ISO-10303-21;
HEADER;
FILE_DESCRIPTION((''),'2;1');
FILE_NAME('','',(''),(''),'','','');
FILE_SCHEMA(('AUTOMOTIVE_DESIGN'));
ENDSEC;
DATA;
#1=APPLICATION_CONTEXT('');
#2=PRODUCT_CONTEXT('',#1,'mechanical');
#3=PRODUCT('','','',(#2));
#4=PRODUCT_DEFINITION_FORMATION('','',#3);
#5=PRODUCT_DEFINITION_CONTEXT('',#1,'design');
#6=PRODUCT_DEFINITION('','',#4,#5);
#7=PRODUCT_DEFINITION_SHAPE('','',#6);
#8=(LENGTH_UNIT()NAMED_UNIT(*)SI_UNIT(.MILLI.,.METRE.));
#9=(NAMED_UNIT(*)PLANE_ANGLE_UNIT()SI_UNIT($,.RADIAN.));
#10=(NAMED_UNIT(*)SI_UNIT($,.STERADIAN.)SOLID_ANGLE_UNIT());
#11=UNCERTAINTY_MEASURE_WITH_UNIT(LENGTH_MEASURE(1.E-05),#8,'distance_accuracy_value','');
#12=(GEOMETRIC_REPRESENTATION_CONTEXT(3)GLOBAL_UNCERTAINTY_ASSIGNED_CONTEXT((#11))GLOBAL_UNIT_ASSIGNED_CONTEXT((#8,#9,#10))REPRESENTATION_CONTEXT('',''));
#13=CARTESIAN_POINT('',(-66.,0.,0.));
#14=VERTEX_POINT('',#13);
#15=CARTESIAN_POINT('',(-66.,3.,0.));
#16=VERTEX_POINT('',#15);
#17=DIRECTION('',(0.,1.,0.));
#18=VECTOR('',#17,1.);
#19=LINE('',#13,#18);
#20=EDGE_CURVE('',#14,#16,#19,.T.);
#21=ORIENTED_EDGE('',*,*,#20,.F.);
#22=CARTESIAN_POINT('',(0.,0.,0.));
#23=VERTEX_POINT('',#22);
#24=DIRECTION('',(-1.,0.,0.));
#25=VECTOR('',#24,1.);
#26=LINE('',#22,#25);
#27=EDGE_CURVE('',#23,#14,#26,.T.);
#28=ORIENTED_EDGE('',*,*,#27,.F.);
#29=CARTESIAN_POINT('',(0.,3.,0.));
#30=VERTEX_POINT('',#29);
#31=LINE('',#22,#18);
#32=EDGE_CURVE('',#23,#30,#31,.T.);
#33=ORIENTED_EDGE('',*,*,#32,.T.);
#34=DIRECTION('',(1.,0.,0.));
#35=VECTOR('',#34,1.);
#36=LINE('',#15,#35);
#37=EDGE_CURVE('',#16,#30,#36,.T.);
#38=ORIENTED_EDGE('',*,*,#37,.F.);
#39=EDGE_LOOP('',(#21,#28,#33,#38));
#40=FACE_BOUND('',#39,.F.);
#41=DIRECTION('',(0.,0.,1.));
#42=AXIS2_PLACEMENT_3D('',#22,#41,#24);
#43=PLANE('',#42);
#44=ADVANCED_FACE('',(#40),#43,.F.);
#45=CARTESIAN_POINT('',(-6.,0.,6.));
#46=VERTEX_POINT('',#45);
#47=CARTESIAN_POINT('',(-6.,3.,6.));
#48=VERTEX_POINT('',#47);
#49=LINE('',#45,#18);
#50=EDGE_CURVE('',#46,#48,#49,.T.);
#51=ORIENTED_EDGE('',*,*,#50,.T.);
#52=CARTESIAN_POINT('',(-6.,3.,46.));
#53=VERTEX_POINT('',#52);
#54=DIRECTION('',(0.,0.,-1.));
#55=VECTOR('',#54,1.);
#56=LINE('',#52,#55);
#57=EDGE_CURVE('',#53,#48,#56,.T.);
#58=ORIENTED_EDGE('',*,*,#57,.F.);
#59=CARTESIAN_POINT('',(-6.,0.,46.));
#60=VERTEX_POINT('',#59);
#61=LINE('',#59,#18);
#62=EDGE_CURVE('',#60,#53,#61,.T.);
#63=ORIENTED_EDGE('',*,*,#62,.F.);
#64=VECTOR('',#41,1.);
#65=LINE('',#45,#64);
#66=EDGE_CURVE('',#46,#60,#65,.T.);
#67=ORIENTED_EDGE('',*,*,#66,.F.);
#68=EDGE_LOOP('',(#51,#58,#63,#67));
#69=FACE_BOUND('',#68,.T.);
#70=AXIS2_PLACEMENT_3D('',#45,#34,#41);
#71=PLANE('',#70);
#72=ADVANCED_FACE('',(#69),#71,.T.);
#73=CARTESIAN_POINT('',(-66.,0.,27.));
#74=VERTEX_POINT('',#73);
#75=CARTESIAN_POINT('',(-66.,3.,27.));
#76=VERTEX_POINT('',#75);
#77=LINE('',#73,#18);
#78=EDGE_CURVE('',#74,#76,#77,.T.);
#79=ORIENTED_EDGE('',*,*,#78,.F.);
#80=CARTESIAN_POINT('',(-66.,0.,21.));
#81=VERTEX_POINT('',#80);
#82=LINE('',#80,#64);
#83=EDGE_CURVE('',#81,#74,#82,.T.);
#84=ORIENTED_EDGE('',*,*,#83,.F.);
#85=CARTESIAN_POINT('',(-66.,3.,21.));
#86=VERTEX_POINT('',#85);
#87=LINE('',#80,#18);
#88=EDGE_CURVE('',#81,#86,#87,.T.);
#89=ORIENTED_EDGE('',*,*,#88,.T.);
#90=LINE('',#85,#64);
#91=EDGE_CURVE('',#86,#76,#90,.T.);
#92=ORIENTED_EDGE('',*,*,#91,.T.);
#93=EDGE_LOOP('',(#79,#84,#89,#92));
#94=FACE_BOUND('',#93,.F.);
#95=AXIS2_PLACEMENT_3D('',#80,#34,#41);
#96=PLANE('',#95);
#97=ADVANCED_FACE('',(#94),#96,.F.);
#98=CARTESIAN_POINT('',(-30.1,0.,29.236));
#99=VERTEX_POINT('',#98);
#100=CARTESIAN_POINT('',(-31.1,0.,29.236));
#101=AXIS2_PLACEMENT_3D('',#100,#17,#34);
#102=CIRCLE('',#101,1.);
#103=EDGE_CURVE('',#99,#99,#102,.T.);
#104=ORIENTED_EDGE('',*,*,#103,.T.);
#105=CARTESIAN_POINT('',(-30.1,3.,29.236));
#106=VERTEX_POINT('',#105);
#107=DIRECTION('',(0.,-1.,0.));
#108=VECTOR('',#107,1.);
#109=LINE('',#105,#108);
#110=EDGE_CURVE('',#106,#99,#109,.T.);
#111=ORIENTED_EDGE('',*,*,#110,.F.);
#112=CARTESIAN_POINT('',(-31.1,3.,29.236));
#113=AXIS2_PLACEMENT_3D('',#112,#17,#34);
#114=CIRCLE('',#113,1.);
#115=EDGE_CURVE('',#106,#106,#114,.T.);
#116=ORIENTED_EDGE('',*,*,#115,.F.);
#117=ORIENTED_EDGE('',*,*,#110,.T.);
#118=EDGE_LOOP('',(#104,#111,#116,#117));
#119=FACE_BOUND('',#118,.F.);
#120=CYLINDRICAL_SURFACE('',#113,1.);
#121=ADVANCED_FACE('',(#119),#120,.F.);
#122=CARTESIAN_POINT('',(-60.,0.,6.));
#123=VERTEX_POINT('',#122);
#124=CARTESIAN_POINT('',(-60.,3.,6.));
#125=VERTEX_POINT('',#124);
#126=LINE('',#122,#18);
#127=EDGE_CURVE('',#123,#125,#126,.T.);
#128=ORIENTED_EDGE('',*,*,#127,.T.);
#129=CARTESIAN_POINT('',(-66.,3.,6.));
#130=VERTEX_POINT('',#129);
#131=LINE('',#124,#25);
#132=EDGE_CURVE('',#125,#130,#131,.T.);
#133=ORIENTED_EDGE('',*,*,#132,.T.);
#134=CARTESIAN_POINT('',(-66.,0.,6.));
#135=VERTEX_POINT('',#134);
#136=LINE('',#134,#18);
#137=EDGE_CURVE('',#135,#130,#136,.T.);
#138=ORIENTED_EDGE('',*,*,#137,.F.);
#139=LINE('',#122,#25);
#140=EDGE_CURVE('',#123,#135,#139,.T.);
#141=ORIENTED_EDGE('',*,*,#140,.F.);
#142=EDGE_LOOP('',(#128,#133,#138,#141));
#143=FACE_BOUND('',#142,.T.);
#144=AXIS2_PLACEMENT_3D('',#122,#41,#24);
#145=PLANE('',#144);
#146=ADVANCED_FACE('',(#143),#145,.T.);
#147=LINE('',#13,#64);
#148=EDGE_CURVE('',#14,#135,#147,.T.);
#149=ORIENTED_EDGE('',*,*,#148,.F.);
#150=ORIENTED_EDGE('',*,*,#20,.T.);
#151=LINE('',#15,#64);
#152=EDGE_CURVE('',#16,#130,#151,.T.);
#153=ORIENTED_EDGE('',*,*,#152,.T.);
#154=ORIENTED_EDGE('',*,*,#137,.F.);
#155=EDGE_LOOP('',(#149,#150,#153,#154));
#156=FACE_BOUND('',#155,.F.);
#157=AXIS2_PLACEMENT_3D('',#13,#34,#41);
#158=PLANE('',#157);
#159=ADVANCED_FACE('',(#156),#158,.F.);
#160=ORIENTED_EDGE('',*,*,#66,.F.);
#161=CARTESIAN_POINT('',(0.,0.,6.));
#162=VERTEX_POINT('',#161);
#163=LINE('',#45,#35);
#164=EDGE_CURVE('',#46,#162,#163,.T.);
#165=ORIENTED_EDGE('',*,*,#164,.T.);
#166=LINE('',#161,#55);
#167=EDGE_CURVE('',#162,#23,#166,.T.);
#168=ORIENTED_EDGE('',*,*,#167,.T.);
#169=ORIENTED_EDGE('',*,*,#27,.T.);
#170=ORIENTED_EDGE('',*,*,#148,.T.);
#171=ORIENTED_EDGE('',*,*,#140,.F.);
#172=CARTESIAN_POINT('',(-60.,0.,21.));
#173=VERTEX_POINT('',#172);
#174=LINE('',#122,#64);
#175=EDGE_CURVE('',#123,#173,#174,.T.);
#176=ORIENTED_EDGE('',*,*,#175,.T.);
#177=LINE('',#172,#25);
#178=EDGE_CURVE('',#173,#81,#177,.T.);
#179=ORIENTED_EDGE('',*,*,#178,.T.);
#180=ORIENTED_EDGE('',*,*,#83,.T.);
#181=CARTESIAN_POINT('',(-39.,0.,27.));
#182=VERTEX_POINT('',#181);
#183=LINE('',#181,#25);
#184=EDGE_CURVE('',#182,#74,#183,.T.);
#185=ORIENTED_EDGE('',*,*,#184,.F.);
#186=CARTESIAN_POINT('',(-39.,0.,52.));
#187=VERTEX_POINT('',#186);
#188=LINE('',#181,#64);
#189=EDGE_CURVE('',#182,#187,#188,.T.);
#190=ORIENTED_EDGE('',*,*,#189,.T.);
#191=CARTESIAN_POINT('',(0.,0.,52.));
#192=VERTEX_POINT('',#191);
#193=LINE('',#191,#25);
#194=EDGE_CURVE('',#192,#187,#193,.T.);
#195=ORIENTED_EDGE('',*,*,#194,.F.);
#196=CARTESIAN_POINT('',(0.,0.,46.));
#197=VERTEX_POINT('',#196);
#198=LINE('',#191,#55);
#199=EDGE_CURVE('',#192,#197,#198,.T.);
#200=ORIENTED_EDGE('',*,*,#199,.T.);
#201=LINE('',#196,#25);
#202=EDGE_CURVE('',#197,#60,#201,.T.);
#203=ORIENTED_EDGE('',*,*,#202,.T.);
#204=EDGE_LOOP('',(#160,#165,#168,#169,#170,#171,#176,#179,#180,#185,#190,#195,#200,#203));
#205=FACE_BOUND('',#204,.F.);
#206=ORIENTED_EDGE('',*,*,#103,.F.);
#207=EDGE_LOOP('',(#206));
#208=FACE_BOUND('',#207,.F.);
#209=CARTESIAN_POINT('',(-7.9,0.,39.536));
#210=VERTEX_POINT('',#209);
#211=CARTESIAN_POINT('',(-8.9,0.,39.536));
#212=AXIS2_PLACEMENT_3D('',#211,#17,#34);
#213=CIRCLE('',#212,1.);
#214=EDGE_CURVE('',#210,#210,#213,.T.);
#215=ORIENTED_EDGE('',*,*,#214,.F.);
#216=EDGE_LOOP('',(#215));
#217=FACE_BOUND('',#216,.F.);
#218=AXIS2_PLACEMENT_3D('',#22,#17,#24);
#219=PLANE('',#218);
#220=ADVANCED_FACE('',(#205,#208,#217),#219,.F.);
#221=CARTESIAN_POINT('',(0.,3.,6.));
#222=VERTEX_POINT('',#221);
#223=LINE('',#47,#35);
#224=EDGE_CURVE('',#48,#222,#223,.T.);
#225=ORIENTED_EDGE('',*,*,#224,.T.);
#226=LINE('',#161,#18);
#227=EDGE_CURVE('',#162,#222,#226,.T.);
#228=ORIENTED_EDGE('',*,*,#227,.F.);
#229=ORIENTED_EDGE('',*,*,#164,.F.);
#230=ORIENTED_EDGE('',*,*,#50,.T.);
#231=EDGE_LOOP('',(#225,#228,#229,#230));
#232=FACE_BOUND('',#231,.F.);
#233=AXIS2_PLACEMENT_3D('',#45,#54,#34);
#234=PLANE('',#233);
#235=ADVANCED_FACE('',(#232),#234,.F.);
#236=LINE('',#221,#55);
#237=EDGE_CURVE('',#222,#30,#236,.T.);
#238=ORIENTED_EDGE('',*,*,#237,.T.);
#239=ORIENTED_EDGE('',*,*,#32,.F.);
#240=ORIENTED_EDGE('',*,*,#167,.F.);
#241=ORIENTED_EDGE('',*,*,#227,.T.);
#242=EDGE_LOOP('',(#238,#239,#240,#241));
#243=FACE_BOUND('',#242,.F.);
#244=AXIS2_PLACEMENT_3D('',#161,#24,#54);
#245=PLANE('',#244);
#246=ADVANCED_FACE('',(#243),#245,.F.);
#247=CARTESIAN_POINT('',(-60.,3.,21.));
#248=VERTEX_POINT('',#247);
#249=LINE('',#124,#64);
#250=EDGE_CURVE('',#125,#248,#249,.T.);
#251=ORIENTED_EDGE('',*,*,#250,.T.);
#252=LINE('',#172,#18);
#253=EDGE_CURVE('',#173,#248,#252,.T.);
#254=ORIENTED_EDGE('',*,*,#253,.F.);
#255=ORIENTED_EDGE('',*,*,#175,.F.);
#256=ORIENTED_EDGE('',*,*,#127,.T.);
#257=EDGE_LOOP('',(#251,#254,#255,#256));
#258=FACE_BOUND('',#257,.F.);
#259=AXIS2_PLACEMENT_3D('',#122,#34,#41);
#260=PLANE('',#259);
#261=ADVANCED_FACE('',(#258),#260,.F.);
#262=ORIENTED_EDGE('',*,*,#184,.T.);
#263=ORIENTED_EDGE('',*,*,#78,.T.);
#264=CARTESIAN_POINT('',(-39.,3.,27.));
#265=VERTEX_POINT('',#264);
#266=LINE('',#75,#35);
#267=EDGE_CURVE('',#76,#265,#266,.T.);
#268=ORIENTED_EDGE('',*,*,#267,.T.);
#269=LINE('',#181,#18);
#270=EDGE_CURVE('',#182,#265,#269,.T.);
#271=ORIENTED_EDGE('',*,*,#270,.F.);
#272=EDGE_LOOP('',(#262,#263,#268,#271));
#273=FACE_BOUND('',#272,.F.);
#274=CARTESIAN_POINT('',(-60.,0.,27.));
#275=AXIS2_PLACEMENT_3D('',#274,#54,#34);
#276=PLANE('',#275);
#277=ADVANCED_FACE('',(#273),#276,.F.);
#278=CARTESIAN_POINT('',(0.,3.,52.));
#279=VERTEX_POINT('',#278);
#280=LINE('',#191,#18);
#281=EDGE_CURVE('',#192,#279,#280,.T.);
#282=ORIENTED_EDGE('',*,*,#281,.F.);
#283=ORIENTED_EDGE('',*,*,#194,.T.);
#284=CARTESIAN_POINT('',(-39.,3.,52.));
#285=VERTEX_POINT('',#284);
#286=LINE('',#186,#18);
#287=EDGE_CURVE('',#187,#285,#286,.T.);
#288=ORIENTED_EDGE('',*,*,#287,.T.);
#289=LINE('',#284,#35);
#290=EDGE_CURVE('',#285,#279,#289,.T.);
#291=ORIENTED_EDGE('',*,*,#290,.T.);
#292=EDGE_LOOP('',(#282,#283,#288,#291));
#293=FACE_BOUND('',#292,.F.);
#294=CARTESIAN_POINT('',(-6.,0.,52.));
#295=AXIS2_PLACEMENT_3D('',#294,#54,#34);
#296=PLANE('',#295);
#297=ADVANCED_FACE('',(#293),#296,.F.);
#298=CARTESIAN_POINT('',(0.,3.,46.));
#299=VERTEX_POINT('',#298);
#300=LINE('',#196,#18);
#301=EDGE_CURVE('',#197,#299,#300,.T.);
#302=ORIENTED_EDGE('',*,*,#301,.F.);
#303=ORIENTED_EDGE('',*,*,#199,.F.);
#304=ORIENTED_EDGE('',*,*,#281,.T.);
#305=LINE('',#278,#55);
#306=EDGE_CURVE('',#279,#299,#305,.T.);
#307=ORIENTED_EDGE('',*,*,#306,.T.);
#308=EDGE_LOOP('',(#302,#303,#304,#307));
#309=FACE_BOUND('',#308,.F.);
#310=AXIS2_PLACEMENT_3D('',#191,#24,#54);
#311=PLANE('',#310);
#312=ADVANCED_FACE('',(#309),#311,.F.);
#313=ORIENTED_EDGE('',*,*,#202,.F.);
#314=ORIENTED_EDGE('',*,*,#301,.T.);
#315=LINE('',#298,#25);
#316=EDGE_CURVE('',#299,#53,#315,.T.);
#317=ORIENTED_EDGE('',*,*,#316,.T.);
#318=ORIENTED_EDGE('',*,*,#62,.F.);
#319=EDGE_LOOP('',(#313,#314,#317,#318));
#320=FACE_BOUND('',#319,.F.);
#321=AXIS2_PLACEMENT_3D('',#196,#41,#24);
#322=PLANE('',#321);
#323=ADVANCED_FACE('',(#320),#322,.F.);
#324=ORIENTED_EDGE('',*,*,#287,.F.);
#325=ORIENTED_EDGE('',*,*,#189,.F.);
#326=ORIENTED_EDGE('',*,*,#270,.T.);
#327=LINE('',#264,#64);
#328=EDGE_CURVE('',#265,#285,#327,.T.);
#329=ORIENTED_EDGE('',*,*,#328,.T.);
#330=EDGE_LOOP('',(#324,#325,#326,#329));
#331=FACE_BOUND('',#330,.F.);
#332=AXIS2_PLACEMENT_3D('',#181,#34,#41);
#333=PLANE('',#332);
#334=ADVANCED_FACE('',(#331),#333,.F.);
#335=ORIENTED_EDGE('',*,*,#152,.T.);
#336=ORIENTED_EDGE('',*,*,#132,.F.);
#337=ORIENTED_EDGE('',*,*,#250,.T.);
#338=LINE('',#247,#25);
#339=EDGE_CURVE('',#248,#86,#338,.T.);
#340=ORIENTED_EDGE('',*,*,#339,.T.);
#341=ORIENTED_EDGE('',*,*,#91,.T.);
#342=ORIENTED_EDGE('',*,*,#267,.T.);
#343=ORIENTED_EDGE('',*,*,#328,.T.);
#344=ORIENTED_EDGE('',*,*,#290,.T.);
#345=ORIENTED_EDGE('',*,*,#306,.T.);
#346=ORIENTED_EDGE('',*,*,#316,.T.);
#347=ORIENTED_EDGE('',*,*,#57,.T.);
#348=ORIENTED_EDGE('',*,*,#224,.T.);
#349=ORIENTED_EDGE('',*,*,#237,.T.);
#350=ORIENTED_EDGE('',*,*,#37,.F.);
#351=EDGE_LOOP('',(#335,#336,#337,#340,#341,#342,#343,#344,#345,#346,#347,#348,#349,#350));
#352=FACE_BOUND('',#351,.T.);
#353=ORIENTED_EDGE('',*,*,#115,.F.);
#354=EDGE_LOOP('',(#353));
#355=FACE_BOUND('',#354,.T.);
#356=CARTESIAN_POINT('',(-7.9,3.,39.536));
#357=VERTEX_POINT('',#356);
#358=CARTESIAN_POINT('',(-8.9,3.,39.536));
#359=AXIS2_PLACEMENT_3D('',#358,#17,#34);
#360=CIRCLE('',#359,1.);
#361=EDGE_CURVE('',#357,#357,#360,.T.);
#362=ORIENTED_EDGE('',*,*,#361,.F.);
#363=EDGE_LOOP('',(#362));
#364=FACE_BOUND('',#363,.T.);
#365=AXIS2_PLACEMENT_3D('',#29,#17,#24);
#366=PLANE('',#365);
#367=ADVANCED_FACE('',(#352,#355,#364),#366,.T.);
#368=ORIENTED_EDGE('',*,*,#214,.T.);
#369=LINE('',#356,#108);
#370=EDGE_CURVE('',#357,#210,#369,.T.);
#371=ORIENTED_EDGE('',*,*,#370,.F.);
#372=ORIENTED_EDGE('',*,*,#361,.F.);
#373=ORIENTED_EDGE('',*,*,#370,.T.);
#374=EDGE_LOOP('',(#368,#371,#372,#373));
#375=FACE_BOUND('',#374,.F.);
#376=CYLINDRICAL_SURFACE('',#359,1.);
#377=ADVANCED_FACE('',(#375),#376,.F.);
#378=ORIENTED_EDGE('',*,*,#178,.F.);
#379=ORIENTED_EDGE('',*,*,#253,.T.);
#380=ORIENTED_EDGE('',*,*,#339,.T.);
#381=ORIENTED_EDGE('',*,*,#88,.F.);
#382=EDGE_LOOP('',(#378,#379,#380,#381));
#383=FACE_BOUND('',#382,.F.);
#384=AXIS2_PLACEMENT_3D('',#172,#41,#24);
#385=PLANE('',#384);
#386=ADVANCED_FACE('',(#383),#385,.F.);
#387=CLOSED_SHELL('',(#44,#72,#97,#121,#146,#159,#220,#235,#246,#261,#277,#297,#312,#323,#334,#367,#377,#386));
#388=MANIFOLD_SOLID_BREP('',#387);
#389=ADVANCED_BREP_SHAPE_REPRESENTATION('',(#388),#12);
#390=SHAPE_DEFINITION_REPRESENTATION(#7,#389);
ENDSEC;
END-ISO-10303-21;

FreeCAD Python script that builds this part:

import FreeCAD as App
import Part
import Sketcher

V = App.Vector
Q = App.Units.Quantity


def add_polygon(sketch, points):
    """Adds a closed chain of lines whose ends are joined by coincident constraints."""
    first, n = sketch.GeometryCount, len(points)
    for a, b in zip(points, points[1:] + points[:1]):
        sketch.addGeometry(Part.LineSegment(App.Vector(*a, 0), App.Vector(*b, 0)), False)
    for i in range(n):
        sketch.addConstraint(Sketcher.Constraint("Coincident", first + i, 2, first + (i + 1) % n, 1))

doc = App.newDocument("Part")
body = doc.addObject("PartDesign::Body", "Body")

# Sketch on XZ plane
sketch1 = body.newObject("Sketcher::SketchObject", "Sketch")
sketch1.AttachmentSupport = (doc.getObject("XZ_Plane"), [""])
sketch1.MapMode = "FlatFace"
add_polygon(sketch1, [(0, 6), (0, 0), (-66, 0), (-66, 6), (-60, 6), (-60, 21), (-66, 21), (-66, 27), (-39, 27), (-39, 52), (0, 52), (0, 46), (-6, 46), (-6, 6)])  # lines 0-13
sketch1.addConstraint([
    Sketcher.Constraint("Vertical", 0),
    Sketcher.Constraint("Horizontal", 1),
    Sketcher.Constraint("Vertical", 2),
    Sketcher.Constraint("Horizontal", 3),
    Sketcher.Constraint("Vertical", 4),
    Sketcher.Constraint("Horizontal", 5),
    Sketcher.Constraint("Vertical", 6),
    Sketcher.Constraint("Horizontal", 7),
    Sketcher.Constraint("Vertical", 8),
    Sketcher.Constraint("Horizontal", 9),
    Sketcher.Constraint("Vertical", 10),
    Sketcher.Constraint("Horizontal", 11),
    Sketcher.Constraint("Vertical", 12),
    Sketcher.Constraint("Horizontal", 13),
    Sketcher.Constraint("Coincident", 0, 2, -1, 1),
    Sketcher.Constraint("PointOnObject", 9, 2, -2),
    Sketcher.Constraint("Horizontal", 3, 2, 12, 2),
    Sketcher.Constraint("Vertical", 2, 2, 5, 2),
    Sketcher.Constraint("Equal", 5, 11),
    Sketcher.Constraint("Equal", 13, 0),
    Sketcher.Constraint("Equal", 2, 6),
    Sketcher.Constraint("Equal", 6, 10),
    Sketcher.Constraint("DistanceX", 1, 2, 1, 1, Q("66 mm")),
    Sketcher.Constraint("DistanceX", 3, 1, 3, 2, Q("6 mm")),
    Sketcher.Constraint("DistanceX", 7, 1, 7, 2, Q("27 mm")),
    Sketcher.Constraint("DistanceY", 8, 1, 8, 2, Q("25 mm")),
    Sketcher.Constraint("DistanceY", -1, 1, 6, 2, Q("27 mm")),
])
pad1 = body.newObject("PartDesign::Pad", "Pad")
pad1.Profile = sketch1
pad1.Length = 3
pad1.Reversed = True

# Sketch on XZ plane
sketch2 = body.newObject("Sketcher::SketchObject", "Sketch001")
sketch2.AttachmentSupport = (doc.getObject("XZ_Plane"), [""])
sketch2.MapMode = "FlatFace"
sketch2.AttachmentOffset = App.Placement(V(0, 0, -3), App.Rotation())
sketch2.addGeometry([
    Part.Circle(V(-8.9, 39.5, 0), V(0, 0, 1), 1),
    Part.Circle(V(-31.1, 29.2, 0), V(0, 0, 1), 1),
], False)
sketch2.addConstraint([
    Sketcher.Constraint("Equal", 0, 1),
    Sketcher.Constraint("Diameter", 0, Q("2 mm")),
    Sketcher.Constraint("DistanceX", 1, 3, 0, 3, Q("22.2 mm")),
    Sketcher.Constraint("DistanceY", 1, 3, 0, 3, Q("10.3 mm")),
    Sketcher.Constraint("DistanceX", 0, 3, -1, 1, Q("8.9 mm")),
    Sketcher.Constraint("DistanceY", -1, 1, 0, 3, Q("39.536 mm")),
])
pocket1 = body.newObject("PartDesign::Pocket", "Pocket")
pocket1.Profile = sketch2
pocket1.Type = "ThroughAll"
pocket1.Reversed = True

doc.recompute()
